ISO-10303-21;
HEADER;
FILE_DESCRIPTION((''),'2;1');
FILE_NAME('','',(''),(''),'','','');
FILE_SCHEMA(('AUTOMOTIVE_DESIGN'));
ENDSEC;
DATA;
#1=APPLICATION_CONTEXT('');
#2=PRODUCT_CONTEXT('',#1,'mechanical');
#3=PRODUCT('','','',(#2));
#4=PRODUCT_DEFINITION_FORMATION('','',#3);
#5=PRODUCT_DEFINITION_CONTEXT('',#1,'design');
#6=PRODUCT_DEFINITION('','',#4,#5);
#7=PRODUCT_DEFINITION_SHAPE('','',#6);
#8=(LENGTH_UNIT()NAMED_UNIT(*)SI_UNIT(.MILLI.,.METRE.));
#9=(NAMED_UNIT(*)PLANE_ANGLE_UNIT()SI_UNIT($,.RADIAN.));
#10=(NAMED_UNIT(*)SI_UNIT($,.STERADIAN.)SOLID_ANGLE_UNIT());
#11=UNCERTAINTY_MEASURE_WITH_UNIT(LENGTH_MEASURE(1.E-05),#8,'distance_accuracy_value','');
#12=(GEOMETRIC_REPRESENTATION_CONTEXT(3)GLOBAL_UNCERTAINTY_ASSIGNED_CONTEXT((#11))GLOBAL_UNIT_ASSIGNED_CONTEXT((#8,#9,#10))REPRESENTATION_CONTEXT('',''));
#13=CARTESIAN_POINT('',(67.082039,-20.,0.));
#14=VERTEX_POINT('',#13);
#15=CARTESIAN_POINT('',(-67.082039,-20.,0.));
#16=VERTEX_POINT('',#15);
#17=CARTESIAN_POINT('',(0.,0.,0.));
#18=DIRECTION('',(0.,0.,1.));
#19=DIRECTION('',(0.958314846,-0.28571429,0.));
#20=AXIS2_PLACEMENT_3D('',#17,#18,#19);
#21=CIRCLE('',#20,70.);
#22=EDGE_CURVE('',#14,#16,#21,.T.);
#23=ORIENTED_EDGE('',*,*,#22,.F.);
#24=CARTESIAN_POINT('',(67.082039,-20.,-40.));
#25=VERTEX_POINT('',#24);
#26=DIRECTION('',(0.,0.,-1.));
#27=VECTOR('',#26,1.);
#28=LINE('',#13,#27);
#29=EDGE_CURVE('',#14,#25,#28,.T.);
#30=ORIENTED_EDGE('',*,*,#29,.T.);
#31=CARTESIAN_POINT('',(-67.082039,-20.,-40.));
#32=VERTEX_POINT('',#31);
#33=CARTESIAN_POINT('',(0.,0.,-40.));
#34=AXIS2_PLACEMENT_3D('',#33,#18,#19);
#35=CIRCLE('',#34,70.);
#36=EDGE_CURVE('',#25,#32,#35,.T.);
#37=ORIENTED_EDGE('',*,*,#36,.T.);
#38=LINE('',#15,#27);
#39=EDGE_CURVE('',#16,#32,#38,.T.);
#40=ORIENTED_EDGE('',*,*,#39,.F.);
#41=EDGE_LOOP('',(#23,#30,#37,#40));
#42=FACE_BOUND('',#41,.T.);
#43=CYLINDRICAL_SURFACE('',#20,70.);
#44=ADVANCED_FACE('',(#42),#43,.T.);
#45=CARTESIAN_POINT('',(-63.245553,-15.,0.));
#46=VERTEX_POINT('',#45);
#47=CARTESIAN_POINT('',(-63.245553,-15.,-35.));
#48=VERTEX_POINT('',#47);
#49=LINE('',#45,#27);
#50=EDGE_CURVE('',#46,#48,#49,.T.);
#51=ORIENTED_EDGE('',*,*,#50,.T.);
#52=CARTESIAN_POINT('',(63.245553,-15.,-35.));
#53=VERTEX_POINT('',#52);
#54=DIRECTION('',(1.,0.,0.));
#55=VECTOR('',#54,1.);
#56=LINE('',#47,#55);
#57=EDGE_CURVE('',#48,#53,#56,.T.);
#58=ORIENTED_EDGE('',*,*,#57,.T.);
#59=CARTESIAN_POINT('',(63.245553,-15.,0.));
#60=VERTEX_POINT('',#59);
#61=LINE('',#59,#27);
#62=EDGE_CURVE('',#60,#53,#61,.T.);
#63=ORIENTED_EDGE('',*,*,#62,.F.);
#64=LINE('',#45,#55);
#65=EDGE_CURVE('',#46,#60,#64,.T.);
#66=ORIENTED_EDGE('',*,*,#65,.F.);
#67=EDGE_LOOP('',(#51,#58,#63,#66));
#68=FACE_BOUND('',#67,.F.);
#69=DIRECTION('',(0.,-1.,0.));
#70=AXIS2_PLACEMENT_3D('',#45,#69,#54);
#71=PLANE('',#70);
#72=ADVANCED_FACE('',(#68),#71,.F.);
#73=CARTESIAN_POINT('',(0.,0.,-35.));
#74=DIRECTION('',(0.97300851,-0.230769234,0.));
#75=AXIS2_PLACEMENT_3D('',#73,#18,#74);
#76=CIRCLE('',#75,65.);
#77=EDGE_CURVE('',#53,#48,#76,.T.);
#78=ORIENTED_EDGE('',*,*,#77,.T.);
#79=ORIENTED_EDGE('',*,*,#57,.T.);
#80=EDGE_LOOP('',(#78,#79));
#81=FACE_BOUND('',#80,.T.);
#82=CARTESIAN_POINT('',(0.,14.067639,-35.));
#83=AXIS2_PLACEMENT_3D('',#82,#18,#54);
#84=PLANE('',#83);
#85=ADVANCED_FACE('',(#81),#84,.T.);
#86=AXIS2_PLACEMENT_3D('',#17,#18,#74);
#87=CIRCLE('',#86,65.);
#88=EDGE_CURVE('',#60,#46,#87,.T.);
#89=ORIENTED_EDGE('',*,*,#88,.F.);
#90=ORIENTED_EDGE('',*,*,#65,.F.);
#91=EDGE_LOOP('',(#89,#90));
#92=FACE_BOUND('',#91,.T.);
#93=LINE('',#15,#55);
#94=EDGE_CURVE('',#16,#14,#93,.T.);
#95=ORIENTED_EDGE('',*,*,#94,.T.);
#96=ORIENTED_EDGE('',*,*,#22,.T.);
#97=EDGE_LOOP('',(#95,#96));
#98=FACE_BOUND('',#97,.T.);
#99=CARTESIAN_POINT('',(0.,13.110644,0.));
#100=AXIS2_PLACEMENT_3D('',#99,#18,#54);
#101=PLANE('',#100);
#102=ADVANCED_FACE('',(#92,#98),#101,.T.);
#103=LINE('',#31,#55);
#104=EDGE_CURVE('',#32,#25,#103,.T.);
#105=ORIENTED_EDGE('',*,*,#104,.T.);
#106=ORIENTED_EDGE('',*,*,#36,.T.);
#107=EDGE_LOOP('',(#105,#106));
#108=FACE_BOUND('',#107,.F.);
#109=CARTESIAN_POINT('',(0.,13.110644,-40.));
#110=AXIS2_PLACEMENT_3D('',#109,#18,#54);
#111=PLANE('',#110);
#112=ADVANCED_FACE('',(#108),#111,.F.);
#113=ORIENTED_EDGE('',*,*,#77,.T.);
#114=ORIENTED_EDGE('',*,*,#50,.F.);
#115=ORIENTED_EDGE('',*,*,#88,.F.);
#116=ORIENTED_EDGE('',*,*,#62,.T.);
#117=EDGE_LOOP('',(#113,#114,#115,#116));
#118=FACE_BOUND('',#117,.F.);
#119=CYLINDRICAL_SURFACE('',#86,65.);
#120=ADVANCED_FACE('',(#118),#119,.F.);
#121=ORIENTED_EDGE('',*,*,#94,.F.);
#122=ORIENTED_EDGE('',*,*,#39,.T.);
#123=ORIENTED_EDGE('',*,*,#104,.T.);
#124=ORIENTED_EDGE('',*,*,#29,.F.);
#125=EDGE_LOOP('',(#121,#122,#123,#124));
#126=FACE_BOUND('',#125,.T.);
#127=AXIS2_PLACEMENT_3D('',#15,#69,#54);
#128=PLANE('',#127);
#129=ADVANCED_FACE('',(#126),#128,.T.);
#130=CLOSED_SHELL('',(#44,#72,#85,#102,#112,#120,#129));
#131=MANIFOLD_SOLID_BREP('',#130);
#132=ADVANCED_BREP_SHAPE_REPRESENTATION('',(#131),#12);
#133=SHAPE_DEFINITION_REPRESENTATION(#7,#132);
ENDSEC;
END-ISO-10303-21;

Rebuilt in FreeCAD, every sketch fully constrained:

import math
import FreeCAD as App
import Part
import Sketcher

V = App.Vector
Q = App.Units.Quantity

doc = App.newDocument("Part")
params = doc.addObject("Spreadsheet::Sheet", "Params")
for row, (alias, value) in enumerate([
    ("sketch1_radius", "70 mm"),
    ("pad1_length", "40 mm"),
    ("sketch2_radius", "65 mm"),
    ("pocket1_length", "35 mm"),
], start=1):
    params.set(f"A{row}", alias)
    params.set(f"B{row}", "=" + value)
    params.setAlias(f"B{row}", alias)

body = doc.addObject("PartDesign::Body", "Body")

# Sketch on XY plane
sketch1 = body.newObject("Sketcher::SketchObject", "Sketch")
sketch1.AttachmentSupport = (doc.getObject("XY_Plane"), [""])
sketch1.MapMode = "FlatFace"
sketch1.addGeometry([
    Part.LineSegment(V(-67, -20, 0), V(67, -20, 0)),
    Part.ArcOfCircle(Part.Circle(V(0, 0, 0), V(0, 0, 1), 70), math.radians(-17), math.radians(197)),
], False)
sketch1.addConstraint([
    Sketcher.Constraint("Coincident", 0, 1, 1, 2),
    Sketcher.Constraint("Coincident", 1, 1, 0, 2),
    Sketcher.Constraint("Horizontal", 0),
    Sketcher.Constraint("Coincident", 1, 3, -1, 1),
    Sketcher.Constraint("Radius", 1, Q("70 mm")),
    Sketcher.Constraint("DistanceY", 0, 1, -1, 1, Q("20 mm")),
])
sketch1.setExpression("Constraints[4]", "Params.sketch1_radius")
pad1 = body.newObject("PartDesign::Pad", "Pad")
pad1.Profile = sketch1
pad1.setExpression("Length", "Params.pad1_length")
pad1.Reversed = True

# Sketch on XY plane
sketch2 = body.newObject("Sketcher::SketchObject", "Sketch001")
sketch2.AttachmentSupport = (doc.getObject("XY_Plane"), [""])
sketch2.MapMode = "FlatFace"
sketch2.addGeometry([
    Part.LineSegment(V(-63, -15, 0), V(63, -15, 0)),
    Part.ArcOfCircle(Part.Circle(V(0, 0, 0), V(0, 0, 1), 65), math.radians(-13), math.radians(193)),
], False)
sketch2.addConstraint([
    Sketcher.Constraint("Coincident", 0, 1, 1, 2),
    Sketcher.Constraint("Coincident", 1, 1, 0, 2),
    Sketcher.Constraint("Horizontal", 0),
    Sketcher.Constraint("Coincident", 1, 3, -1, 1),
    Sketcher.Constraint("Radius", 1, Q("65 mm")),
    Sketcher.Constraint("DistanceY", 0, 1, -1, 1, Q("15 mm")),
])
sketch2.setExpression("Constraints[4]", "Params.sketch2_radius")
pocket1 = body.newObject("PartDesign::Pocket", "Pocket")
pocket1.Profile = sketch2
pocket1.setExpression("Length", "Params.pocket1_length")

doc.recompute()
